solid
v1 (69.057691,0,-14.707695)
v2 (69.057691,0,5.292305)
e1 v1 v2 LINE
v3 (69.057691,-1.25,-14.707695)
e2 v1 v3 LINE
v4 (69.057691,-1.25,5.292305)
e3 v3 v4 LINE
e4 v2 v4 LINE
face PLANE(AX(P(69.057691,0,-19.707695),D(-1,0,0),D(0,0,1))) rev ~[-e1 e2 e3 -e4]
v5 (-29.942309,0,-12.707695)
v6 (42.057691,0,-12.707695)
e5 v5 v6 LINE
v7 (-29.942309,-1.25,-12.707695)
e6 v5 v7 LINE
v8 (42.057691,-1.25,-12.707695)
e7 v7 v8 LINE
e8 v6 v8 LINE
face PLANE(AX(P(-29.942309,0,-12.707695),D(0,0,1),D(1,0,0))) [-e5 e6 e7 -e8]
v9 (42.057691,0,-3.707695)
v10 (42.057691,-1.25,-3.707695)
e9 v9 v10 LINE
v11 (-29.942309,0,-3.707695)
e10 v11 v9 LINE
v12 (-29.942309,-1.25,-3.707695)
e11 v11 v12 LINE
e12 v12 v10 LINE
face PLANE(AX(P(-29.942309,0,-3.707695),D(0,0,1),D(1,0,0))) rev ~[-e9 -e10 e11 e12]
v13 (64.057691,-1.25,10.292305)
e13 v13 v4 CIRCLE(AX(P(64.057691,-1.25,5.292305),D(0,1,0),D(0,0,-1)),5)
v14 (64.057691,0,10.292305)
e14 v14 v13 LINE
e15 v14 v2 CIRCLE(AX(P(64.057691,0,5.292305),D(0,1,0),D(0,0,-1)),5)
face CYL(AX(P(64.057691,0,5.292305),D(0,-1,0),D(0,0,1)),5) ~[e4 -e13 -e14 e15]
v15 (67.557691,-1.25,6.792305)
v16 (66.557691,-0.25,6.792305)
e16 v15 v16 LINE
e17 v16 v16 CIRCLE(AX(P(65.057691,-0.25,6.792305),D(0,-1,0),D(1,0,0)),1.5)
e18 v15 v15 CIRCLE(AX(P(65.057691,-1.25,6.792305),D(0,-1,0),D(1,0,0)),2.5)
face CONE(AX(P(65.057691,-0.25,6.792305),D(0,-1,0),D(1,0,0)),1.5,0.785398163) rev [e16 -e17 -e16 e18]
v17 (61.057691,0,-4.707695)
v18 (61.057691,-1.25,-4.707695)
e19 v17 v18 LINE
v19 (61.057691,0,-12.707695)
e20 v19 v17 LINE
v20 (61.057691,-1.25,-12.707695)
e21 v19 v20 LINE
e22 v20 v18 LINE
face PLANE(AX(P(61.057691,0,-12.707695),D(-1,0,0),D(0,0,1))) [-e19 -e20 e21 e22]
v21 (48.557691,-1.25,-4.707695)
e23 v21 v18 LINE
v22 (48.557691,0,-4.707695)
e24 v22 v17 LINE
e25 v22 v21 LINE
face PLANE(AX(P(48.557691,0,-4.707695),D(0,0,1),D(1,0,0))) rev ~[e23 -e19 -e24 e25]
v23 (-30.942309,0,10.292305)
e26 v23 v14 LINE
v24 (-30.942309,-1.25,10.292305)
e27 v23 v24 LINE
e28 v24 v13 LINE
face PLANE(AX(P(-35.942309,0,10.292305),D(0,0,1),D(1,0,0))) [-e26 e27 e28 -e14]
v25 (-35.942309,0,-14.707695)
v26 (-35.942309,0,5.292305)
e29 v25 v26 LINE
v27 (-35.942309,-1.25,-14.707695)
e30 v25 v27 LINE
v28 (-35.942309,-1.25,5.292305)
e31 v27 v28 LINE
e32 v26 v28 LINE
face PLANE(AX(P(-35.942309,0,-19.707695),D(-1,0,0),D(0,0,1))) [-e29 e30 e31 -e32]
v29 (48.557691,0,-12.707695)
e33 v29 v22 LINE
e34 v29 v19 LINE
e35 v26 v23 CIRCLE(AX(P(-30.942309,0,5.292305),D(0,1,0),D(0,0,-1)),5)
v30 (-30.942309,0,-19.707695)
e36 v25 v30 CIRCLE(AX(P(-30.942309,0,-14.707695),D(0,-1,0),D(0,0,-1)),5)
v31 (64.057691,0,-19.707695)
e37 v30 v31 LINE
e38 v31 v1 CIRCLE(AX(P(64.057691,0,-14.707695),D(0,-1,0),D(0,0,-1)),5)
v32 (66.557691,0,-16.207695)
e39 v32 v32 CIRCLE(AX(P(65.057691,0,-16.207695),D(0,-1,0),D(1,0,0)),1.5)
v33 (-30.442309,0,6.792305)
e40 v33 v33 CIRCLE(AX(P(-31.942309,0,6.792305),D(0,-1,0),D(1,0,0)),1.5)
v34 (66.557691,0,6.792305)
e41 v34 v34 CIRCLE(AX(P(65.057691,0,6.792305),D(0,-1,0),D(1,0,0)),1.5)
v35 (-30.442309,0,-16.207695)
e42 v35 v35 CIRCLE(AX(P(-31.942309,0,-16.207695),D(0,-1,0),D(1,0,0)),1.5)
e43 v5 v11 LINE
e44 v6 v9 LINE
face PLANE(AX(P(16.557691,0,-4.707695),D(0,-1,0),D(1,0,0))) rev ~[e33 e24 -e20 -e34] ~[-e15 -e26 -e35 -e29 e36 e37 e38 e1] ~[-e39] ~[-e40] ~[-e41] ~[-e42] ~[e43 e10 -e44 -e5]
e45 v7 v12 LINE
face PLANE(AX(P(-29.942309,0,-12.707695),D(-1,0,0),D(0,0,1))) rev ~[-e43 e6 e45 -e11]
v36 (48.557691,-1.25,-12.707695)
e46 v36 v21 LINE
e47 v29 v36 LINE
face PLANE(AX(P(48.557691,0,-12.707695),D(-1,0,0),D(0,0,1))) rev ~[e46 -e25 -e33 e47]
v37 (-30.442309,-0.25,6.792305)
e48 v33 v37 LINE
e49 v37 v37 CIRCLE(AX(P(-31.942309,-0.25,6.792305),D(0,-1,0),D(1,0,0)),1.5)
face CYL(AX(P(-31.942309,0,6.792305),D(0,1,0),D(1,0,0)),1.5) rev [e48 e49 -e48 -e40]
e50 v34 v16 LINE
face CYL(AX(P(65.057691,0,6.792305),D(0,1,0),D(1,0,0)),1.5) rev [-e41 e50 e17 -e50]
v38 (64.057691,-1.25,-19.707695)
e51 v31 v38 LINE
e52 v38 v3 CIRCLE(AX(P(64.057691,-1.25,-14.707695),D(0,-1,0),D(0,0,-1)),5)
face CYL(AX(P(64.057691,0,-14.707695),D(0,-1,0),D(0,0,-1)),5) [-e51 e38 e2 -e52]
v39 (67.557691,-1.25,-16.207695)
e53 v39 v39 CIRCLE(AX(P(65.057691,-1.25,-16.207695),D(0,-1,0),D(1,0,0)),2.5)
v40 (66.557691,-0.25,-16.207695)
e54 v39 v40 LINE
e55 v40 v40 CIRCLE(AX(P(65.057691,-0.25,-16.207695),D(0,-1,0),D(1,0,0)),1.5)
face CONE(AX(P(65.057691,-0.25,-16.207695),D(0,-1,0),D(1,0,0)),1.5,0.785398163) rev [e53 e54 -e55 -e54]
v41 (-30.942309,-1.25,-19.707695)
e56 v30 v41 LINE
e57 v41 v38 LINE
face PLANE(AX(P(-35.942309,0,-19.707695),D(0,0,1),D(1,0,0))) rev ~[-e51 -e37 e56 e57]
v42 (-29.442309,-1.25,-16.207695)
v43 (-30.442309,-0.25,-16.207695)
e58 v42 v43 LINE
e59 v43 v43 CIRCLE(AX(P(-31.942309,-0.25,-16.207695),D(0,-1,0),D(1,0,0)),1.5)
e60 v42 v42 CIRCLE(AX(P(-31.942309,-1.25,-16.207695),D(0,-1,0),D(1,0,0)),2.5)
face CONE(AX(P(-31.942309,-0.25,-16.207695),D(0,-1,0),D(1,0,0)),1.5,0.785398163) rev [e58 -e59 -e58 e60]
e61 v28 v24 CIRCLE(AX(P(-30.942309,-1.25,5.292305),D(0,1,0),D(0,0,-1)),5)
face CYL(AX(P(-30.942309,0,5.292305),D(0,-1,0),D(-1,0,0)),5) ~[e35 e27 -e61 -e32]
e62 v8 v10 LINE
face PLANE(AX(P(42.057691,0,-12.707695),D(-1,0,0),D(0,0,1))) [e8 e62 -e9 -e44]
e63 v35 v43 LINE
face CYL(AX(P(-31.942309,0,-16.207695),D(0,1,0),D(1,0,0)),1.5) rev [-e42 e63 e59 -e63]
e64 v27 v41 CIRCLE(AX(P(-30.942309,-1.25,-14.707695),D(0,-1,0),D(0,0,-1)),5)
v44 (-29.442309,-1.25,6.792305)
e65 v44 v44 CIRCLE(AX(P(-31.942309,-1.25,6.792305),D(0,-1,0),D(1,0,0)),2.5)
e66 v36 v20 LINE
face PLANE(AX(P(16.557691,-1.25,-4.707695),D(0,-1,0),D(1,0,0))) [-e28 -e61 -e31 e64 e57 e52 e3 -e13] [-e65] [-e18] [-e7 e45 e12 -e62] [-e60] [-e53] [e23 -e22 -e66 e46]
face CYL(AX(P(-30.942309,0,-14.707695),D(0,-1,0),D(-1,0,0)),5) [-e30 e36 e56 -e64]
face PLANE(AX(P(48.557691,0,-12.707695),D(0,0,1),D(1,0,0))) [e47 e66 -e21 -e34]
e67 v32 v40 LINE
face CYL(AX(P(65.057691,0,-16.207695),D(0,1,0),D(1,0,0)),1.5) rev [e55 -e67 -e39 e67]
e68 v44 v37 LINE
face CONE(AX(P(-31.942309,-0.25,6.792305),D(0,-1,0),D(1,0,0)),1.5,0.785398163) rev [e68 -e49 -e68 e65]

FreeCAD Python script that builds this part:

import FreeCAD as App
import Part
import Sketcher
from FreeCAD import Vector
Q = App.Units.Quantity


def edges_at(feature, points):
    """Names of the edges that pass closest to the given points."""
    edges = feature.Shape.Edges
    near = lambda p: min(range(len(edges)), key=lambda i: edges[i].distToShape(Part.Vertex(*p))[0])
    return sorted({f"Edge{near(p) + 1}" for p in points})

doc = App.newDocument("Part")
body = doc.addObject("PartDesign::Body", "Body")

sketch1 = body.newObject("Sketcher::SketchObject", "Sketch")
sketch1.AttachmentSupport = (doc.getObject("XZ_Plane"), [""])
sketch1.MapMode = "FlatFace"
sketch1.addGeometry([
    Part.LineSegment(Vector(-35.942309, 10.292305, 0), Vector(-35.942309, -19.707695, 0)),
    Part.LineSegment(Vector(-35.942309, -19.707695, 0), Vector(69.057691, -19.707695, 0)),
    Part.LineSegment(Vector(69.057691, -19.707695, 0), Vector(69.057691, 10.292305, 0)),
    Part.LineSegment(Vector(69.057691, 10.292305, 0), Vector(-35.942309, 10.292305, 0)),
    Part.Circle(Vector(-31.942309, -16.207695, 0), Vector(0, 0, 1), 1.5),
    Part.LineSegment(Vector(42.057691, -12.707695, 0), Vector(-29.942309, -12.707695, 0)),
    Part.LineSegment(Vector(-29.942309, -12.707695, 0), Vector(-29.942309, -3.707695, 0)),
    Part.LineSegment(Vector(-29.942309, -3.707695, 0), Vector(42.057691, -3.707695, 0)),
    Part.LineSegment(Vector(42.057691, -3.707695, 0), Vector(42.057691, -12.707695, 0)),
    Part.Circle(Vector(65.057691, -16.207695, 0), Vector(0, 0, 1), 1.5),
    Part.LineSegment(Vector(61.057691, -12.707695, 0), Vector(48.557691, -12.707695, 0)),
    Part.LineSegment(Vector(48.557691, -12.707695, 0), Vector(48.557691, -4.707695, 0)),
    Part.LineSegment(Vector(48.557691, -4.707695, 0), Vector(61.057691, -4.707695, 0)),
    Part.LineSegment(Vector(61.057691, -4.707695, 0), Vector(61.057691, -12.707695, 0)),
    Part.Circle(Vector(-31.942309, 6.792305, 0), Vector(0, 0, 1), 1.5),
    Part.Circle(Vector(65.057691, 6.792305, 0), Vector(0, 0, 1), 1.5),
], False)
sketch1.addConstraint([
    Sketcher.Constraint("Coincident", 0, 2, 1, 1),
    Sketcher.Constraint("Coincident", 1, 2, 2, 1),
    Sketcher.Constraint("Coincident", 2, 2, 3, 1),
    Sketcher.Constraint("Coincident", 3, 2, 0, 1),
    Sketcher.Constraint("Coincident", 5, 2, 6, 1),
    Sketcher.Constraint("Coincident", 6, 2, 7, 1),
    Sketcher.Constraint("Coincident", 7, 2, 8, 1),
    Sketcher.Constraint("Coincident", 8, 2, 5, 1),
    Sketcher.Constraint("Coincident", 10, 2, 11, 1),
    Sketcher.Constraint("Coincident", 11, 2, 12, 1),
    Sketcher.Constraint("Coincident", 12, 2, 13, 1),
    Sketcher.Constraint("Coincident", 13, 2, 10, 1),
    Sketcher.Constraint("Vertical", 0),
    Sketcher.Constraint("Horizontal", 1),
    Sketcher.Constraint("Vertical", 2),
    Sketcher.Constraint("Horizontal", 3),
    Sketcher.Constraint("Horizontal", 5),
    Sketcher.Constraint("Vertical", 6),
    Sketcher.Constraint("Horizontal", 7),
    Sketcher.Constraint("Vertical", 8),
    Sketcher.Constraint("Horizontal", 10),
    Sketcher.Constraint("Vertical", 11),
    Sketcher.Constraint("Horizontal", 12),
    Sketcher.Constraint("Vertical", 13),
    Sketcher.Constraint("Equal", 4, 9),
    Sketcher.Constraint("Equal", 9, 14),
    Sketcher.Constraint("Equal", 14, 15),
    Sketcher.Constraint("Horizontal", 4, 3, 9, 3),
    Sketcher.Constraint("Horizontal", 14, 3, 15, 3),
    Sketcher.Constraint("Horizontal", 8, 2, 10, 2),
    Sketcher.Constraint("Vertical", 4, 3, 14, 3),
    Sketcher.Constraint("Vertical", 9, 3, 15, 3),
    Sketcher.Constraint("Diameter", 4, Q("3 mm")),
    Sketcher.Constraint("DistanceX", 1, 1, 1, 2, Q("105 mm")),
    Sketcher.Constraint("DistanceX", 5, 2, 5, 1, Q("72 mm")),
    Sketcher.Constraint("DistanceY", 0, 2, 0, 1, Q("30 mm")),
    Sketcher.Constraint("DistanceY", 6, 1, 6, 2, Q("9 mm")),
    Sketcher.Constraint("DistanceY", 11, 1, 11, 2, Q("8 mm")),
    Sketcher.Constraint("DistanceX", 10, 2, 10, 1, Q("12.5 mm")),
    Sketcher.Constraint("DistanceX", 4, 3, 9, 3, Q("97 mm")),
    Sketcher.Constraint("DistanceY", 4, 3, 14, 3, Q("23 mm")),
    Sketcher.Constraint("DistanceX", 0, 2, 4, 3, Q("4 mm")),
    Sketcher.Constraint("DistanceX", 4, 3, 5, 2, Q("2 mm")),
    Sketcher.Constraint("DistanceY", 0, 2, 5, 2, Q("7 mm")),
    Sketcher.Constraint("DistanceX", 12, 2, 9, 3, Q("4 mm")),
    Sketcher.Constraint("DistanceY", 0, 2, 4, 3, Q("3.5 mm")),
    Sketcher.Constraint("DistanceX", 4, 3, -1, 1, Q("31.942309 mm")),
    Sketcher.Constraint("DistanceY", 4, 3, -1, 1, Q("16.207695 mm")),
])
pad1 = body.newObject("PartDesign::Pad", "Pad")
pad1.Profile = sketch1
pad1.Length = 1.25
doc.recompute()

fillet = body.newObject("PartDesign::Fillet", "Fillet")
fillet.Base = (pad1, edges_at(pad1, [
    (69.058, -0.625, 10.292),
    (69.058, -0.625, -19.708),
    (-35.942, -0.625, -19.708),
    (-35.942, -0.625, 10.292),
]))
fillet.Radius = 5
doc.recompute()

chamfer = body.newObject("PartDesign::Chamfer", "Chamfer")
chamfer.Base = (fillet, edges_at(fillet, [
    (-33.442, -1.25, 6.792),
    (-33.442, -1.25, -16.208),
    (63.558, -1.25, -16.208),
    (63.558, -1.25, 6.792),
]))
chamfer.Size = 1

doc.recompute()
